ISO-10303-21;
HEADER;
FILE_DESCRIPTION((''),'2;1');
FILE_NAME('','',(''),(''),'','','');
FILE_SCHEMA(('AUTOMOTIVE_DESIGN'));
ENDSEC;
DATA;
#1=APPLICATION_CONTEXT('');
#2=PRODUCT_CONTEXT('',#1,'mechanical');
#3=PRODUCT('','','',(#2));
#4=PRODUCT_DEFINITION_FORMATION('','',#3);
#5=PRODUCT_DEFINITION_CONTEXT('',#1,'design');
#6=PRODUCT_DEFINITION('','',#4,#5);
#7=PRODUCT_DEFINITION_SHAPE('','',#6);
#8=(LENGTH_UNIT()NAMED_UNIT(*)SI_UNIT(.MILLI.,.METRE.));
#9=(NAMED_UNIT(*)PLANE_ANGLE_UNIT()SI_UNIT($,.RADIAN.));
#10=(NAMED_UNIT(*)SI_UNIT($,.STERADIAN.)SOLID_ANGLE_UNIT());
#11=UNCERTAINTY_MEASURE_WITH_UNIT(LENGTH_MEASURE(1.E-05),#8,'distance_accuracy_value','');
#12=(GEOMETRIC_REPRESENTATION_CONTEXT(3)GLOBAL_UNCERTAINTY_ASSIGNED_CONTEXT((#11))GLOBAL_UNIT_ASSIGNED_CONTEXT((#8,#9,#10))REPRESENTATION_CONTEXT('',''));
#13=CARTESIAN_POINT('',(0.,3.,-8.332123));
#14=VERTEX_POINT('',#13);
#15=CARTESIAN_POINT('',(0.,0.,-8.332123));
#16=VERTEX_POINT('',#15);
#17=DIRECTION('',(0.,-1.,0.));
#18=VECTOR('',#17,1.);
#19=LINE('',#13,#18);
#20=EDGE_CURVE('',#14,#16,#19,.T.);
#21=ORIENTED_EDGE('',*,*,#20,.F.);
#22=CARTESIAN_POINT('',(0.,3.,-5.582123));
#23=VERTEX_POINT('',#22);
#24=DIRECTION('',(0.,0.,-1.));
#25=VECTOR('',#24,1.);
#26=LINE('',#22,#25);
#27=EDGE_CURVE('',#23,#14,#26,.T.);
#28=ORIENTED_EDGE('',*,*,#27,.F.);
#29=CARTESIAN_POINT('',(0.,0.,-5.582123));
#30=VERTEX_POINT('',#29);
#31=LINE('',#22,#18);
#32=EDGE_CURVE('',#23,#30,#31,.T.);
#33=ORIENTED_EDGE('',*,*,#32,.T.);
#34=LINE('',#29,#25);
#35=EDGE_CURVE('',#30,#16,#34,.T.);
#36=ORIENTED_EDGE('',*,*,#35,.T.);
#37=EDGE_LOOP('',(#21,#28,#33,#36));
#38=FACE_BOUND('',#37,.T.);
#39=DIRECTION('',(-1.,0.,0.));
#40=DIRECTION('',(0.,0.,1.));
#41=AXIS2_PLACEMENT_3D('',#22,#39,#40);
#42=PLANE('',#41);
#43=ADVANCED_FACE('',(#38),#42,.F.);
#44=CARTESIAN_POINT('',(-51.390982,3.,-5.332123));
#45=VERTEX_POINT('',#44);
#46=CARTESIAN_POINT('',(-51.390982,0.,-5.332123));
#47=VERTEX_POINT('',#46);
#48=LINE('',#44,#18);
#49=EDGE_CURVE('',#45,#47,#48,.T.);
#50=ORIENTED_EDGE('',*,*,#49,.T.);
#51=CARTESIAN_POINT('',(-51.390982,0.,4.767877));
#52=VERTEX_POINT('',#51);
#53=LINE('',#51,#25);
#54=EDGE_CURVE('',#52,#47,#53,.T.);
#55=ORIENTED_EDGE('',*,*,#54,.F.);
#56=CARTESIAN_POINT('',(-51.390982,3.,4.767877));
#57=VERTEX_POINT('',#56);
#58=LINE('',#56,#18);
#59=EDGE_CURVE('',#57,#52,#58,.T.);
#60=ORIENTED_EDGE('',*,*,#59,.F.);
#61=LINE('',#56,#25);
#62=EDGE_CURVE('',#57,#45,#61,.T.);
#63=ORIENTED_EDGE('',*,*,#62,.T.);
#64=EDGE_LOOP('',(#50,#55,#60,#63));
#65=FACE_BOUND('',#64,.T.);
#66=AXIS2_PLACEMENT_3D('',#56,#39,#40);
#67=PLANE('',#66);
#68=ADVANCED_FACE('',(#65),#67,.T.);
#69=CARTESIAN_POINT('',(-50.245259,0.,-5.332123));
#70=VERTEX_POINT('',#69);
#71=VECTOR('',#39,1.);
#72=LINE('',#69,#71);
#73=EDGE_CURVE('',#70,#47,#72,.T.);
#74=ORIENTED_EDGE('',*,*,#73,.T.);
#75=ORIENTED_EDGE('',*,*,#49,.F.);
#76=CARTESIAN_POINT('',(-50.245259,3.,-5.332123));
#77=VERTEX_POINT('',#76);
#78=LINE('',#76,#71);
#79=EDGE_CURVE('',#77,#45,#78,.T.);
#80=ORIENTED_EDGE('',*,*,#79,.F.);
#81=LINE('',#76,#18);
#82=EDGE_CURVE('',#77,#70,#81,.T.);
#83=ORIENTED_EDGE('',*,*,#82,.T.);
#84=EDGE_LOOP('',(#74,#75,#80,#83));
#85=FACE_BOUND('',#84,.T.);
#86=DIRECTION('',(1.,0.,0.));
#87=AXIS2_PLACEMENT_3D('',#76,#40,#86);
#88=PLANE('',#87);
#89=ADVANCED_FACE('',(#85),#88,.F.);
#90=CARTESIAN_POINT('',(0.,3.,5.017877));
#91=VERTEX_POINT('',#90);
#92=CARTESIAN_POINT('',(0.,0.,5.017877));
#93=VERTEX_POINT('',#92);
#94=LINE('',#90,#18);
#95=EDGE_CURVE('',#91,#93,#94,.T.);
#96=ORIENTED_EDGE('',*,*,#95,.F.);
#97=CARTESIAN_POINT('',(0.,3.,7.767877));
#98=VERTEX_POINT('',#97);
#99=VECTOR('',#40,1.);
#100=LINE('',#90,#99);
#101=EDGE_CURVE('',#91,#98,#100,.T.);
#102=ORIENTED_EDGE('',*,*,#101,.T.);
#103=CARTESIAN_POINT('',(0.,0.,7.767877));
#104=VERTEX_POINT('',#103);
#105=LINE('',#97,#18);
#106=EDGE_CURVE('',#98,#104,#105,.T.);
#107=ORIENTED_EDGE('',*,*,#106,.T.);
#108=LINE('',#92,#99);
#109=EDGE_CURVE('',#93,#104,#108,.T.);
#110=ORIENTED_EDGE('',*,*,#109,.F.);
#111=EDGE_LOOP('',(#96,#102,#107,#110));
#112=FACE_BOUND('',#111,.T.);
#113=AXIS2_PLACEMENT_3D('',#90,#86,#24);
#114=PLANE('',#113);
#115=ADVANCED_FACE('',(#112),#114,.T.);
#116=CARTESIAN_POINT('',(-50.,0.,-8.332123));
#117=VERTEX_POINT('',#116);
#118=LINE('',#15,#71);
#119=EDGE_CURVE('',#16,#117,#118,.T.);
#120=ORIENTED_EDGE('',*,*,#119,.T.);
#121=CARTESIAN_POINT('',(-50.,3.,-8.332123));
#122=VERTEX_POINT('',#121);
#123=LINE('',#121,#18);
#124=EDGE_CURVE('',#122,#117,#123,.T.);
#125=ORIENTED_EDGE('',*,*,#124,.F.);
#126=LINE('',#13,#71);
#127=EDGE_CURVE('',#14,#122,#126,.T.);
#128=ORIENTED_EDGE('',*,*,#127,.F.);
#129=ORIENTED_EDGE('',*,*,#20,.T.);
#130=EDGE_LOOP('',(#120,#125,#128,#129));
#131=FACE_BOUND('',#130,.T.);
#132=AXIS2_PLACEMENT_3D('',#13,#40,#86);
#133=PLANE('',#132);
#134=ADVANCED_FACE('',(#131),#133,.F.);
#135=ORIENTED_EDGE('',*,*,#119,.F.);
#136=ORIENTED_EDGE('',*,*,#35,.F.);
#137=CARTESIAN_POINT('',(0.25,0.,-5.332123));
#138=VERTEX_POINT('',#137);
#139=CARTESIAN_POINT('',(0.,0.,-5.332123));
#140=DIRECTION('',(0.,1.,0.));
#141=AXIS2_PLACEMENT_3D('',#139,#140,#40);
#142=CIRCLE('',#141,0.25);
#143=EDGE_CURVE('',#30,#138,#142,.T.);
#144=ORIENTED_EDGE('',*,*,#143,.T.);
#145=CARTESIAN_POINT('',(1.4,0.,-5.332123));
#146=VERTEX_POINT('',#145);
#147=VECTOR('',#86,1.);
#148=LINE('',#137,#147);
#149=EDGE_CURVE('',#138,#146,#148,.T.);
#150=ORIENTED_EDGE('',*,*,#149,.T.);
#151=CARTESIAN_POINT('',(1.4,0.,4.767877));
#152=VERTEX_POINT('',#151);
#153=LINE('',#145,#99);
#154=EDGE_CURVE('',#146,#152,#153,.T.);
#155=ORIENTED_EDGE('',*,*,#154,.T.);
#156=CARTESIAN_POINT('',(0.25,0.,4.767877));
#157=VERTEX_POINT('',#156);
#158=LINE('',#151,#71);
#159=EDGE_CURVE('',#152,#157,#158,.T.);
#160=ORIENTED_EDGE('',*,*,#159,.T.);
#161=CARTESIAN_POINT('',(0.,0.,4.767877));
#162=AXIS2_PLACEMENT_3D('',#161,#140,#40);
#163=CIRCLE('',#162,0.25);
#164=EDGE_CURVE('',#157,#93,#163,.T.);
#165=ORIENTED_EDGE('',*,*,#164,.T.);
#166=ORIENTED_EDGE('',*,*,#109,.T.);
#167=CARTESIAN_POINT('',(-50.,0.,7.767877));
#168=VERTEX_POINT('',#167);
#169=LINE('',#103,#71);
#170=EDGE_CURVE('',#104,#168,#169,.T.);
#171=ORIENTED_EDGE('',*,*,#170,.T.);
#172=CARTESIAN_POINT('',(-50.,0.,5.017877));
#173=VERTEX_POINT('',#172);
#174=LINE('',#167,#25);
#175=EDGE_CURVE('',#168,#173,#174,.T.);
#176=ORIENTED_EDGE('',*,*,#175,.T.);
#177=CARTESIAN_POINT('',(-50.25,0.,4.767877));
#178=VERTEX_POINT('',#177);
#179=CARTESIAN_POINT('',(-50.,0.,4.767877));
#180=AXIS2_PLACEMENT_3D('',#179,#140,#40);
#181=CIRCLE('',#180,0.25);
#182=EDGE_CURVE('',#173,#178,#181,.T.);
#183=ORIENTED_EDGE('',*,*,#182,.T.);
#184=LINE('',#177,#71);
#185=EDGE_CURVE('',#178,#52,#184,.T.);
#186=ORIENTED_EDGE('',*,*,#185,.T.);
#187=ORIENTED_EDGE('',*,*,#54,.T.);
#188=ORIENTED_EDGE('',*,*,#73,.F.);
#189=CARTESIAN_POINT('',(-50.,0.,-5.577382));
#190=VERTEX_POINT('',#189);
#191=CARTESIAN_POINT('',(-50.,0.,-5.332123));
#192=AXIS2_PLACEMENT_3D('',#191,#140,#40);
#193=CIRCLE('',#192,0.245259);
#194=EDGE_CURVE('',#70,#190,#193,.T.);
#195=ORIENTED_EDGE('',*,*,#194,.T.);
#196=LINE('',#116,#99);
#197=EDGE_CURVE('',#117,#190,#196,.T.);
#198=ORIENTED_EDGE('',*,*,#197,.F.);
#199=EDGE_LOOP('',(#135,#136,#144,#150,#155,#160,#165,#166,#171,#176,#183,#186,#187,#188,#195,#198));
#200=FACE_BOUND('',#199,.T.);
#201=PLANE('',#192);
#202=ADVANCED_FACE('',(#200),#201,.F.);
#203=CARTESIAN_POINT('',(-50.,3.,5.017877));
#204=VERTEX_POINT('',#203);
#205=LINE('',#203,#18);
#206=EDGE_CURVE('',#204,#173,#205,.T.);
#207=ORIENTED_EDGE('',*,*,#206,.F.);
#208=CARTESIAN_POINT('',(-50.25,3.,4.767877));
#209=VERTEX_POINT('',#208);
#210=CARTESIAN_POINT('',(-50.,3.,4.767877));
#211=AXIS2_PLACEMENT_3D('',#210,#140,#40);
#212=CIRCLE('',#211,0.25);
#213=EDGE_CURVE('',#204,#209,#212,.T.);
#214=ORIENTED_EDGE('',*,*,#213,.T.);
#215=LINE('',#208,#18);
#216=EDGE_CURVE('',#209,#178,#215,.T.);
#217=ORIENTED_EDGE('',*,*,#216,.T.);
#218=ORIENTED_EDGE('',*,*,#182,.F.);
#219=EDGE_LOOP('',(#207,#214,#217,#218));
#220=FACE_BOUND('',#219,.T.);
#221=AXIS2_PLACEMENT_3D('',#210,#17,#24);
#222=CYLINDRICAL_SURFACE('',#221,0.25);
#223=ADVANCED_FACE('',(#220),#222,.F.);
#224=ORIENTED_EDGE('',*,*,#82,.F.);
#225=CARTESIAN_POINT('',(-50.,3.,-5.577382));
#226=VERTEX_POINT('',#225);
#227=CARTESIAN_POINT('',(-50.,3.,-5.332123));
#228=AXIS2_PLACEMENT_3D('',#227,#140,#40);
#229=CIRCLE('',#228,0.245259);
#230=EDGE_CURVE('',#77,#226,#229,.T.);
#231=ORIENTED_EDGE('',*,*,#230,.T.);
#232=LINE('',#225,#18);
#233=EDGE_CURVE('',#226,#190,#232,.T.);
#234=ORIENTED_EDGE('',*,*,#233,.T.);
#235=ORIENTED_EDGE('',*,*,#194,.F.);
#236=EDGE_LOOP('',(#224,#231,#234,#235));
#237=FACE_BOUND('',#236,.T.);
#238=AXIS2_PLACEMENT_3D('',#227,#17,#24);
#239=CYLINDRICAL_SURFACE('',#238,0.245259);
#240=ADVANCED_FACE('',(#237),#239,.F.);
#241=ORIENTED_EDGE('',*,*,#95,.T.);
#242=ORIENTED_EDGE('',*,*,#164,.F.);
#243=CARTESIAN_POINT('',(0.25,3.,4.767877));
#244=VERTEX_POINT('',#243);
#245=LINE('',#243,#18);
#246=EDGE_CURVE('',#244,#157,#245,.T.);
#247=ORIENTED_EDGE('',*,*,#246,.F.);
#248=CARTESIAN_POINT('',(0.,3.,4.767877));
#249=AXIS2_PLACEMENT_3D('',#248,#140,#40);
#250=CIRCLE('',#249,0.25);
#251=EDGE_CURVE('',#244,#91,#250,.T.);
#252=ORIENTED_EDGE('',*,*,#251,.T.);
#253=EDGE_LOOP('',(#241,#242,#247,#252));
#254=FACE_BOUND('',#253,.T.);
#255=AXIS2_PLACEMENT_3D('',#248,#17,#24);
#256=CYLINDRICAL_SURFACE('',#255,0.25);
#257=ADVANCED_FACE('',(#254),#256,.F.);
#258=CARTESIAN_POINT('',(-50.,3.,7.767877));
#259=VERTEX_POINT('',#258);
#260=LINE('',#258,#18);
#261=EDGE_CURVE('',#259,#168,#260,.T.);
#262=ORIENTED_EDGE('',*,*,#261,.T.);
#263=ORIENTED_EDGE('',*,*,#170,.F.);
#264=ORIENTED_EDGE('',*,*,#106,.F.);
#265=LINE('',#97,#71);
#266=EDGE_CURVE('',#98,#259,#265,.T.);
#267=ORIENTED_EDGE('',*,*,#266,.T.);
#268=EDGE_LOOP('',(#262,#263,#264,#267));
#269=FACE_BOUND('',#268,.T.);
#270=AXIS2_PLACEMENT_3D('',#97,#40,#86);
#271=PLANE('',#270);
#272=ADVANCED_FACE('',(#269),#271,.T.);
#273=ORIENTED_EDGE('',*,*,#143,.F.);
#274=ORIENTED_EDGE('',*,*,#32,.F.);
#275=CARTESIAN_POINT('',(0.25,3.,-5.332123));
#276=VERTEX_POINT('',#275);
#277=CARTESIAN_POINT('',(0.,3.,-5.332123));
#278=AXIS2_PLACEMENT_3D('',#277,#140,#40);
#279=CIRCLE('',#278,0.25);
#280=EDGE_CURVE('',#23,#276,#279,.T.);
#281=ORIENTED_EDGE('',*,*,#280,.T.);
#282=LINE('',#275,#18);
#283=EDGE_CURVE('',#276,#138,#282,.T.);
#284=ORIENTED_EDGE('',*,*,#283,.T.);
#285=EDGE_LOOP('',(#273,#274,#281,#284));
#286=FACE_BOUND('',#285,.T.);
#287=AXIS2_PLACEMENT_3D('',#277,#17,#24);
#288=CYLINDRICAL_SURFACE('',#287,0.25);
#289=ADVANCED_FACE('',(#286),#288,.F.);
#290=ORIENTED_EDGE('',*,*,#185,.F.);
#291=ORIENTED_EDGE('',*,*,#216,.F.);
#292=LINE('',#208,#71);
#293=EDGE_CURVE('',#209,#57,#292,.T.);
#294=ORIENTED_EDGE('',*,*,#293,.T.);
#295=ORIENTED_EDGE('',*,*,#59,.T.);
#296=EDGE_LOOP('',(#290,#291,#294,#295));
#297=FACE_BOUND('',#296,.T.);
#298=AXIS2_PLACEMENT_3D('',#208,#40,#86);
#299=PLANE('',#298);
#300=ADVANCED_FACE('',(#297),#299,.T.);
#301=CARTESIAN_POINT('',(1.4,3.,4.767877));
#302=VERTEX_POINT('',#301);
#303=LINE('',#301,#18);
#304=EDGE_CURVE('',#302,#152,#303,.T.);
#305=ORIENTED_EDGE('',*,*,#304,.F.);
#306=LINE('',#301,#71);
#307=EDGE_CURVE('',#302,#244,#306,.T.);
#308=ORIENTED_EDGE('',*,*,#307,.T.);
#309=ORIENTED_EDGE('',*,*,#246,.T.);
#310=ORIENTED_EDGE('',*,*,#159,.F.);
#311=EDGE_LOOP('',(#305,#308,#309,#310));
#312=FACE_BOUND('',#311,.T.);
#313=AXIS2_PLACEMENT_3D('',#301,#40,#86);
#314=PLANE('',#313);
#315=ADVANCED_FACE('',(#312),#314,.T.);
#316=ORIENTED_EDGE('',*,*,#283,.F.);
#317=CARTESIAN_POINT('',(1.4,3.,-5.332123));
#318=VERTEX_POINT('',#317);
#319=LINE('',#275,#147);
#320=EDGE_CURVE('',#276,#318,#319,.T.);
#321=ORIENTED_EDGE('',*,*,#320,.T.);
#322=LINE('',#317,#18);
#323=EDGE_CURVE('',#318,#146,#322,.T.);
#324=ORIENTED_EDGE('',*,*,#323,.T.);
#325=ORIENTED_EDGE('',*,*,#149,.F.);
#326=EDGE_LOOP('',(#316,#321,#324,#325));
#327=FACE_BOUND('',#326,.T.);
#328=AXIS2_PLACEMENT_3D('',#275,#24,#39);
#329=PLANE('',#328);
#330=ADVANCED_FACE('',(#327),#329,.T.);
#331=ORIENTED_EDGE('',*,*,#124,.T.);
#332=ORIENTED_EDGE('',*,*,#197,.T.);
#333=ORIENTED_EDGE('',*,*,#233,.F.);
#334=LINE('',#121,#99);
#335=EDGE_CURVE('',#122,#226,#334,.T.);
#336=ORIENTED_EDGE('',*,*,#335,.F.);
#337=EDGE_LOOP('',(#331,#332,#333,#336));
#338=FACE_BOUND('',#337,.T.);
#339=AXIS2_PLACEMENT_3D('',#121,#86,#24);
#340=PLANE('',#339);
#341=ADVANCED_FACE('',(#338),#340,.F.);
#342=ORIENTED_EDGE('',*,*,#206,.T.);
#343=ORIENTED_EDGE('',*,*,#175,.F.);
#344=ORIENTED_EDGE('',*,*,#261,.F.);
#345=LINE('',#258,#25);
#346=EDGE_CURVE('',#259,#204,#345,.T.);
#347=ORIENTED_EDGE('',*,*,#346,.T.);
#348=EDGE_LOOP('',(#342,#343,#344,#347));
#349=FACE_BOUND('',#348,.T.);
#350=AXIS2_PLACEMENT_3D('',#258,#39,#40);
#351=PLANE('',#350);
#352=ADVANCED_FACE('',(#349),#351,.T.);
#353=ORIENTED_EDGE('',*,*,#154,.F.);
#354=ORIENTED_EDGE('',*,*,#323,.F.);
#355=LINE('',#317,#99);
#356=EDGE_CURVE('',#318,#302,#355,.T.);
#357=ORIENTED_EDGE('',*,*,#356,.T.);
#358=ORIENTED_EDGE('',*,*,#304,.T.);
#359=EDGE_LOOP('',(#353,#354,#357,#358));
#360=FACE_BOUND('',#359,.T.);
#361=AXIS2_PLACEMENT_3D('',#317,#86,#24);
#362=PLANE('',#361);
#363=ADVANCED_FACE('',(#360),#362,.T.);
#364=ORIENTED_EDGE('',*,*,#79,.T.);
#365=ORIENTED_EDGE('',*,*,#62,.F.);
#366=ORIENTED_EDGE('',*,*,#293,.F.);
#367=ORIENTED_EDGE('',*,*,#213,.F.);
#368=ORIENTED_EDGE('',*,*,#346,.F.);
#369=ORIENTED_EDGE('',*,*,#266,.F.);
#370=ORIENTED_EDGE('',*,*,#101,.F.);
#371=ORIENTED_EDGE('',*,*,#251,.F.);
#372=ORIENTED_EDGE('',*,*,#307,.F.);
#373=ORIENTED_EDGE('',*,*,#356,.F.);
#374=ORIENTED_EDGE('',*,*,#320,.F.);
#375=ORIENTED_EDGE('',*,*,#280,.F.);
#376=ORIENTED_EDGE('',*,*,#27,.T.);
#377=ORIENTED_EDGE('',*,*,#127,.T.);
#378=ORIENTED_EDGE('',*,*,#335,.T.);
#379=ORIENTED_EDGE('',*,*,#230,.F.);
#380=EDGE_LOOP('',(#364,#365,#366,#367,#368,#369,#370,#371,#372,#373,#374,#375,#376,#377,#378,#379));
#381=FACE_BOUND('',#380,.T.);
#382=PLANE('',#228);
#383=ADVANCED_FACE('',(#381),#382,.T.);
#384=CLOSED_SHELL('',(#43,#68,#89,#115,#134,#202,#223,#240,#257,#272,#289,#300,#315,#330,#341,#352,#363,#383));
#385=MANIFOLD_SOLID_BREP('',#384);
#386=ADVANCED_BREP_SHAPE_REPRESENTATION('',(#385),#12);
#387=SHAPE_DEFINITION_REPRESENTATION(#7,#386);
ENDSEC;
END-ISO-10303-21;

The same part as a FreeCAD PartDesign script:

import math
import FreeCAD as App
import Part
import Sketcher
from FreeCAD import Vector
Q = App.Units.Quantity

doc = App.newDocument("Part")
body = doc.addObject("PartDesign::Body", "Body")

# Sketch on XZ plane
sketch1 = doc.addObject("Sketcher::SketchObject", "Sketch")
body.addObject(sketch1)
sketch1.AttachmentSupport = (doc.XZ_Plane, [""])
sketch1.MapMode = "FlatFace"
sketch1.addGeometry([
    Part.LineSegment(Vector(1.4, -5.33, 0), Vector(0.25, -5.33, 0)),  # 0
    Part.ArcOfCircle(Part.Circle(Vector(0, -5.33, 0), Vector(0, 0, 1), 0.25), math.radians(0), math.radians(270)),  # 1
    Part.LineSegment(Vector(0, -5.58, 0), Vector(0, -8.33, 0)),  # 2
    Part.LineSegment(Vector(0, -8.33, 0), Vector(-50, -8.33, 0)),  # 3
    Part.LineSegment(Vector(-50, -8.33, 0), Vector(-50, -5.58, 0)),  # 4
    Part.ArcOfCircle(Part.Circle(Vector(-50, -5.33, 0), Vector(0, 0, 1), 0.25), math.radians(-90), math.radians(180)),  # 5
    Part.LineSegment(Vector(-50.25, -5.33, 0), Vector(-51.39, -5.33, 0)),  # 6
    Part.LineSegment(Vector(-51.39, -5.33, 0), Vector(-51.39, 4.77, 0)),  # 7
    Part.LineSegment(Vector(-51.39, 4.77, 0), Vector(-50.25, 4.77, 0)),  # 8
    Part.ArcOfCircle(Part.Circle(Vector(-50, 4.77, 0), Vector(0, 0, 1), 0.25), math.radians(180), math.radians(450)),  # 9
    Part.LineSegment(Vector(-50, 5.02, 0), Vector(-50, 7.77, 0)),  # 10
    Part.LineSegment(Vector(-50, 7.77, 0), Vector(0, 7.77, 0)),  # 11
    Part.LineSegment(Vector(0, 7.77, 0), Vector(0, 5.02, 0)),  # 12
    Part.ArcOfCircle(Part.Circle(Vector(0, 4.77, 0), Vector(0, 0, 1), 0.25), math.radians(90), math.radians(360)),  # 13
    Part.LineSegment(Vector(0.25, 4.77, 0), Vector(1.4, 4.77, 0)),  # 14
    Part.LineSegment(Vector(1.4, 4.77, 0), Vector(1.4, -5.33, 0)),  # 15
], False)
sketch1.addConstraint([
    Sketcher.Constraint("Coincident", 0, 2, 1, 1),
    Sketcher.Constraint("Coincident", 1, 2, 2, 1),
    Sketcher.Constraint("Coincident", 2, 2, 3, 1),
    Sketcher.Constraint("Coincident", 3, 2, 4, 1),
    Sketcher.Constraint("Coincident", 4, 2, 5, 1),
    Sketcher.Constraint("Coincident", 5, 2, 6, 1),
    Sketcher.Constraint("Coincident", 6, 2, 7, 1),
    Sketcher.Constraint("Coincident", 7, 2, 8, 1),
    Sketcher.Constraint("Coincident", 8, 2, 9, 1),
    Sketcher.Constraint("Coincident", 9, 2, 10, 1),
    Sketcher.Constraint("Coincident", 10, 2, 11, 1),
    Sketcher.Constraint("Coincident", 11, 2, 12, 1),
    Sketcher.Constraint("Coincident", 12, 2, 13, 1),
    Sketcher.Constraint("Coincident", 13, 2, 14, 1),
    Sketcher.Constraint("Coincident", 14, 2, 15, 1),
    Sketcher.Constraint("Coincident", 15, 2, 0, 1),
    Sketcher.Constraint("Horizontal", 0),
    Sketcher.Constraint("Vertical", 2),
    Sketcher.Constraint("Horizontal", 3),
    Sketcher.Constraint("Vertical", 4),
    Sketcher.Constraint("Horizontal", 6),
    Sketcher.Constraint("Vertical", 7),
    Sketcher.Constraint("Horizontal", 8),
    Sketcher.Constraint("Vertical", 10),
    Sketcher.Constraint("Horizontal", 11),
    Sketcher.Constraint("Vertical", 12),
    Sketcher.Constraint("Horizontal", 14),
    Sketcher.Constraint("Vertical", 15),
    Sketcher.Constraint("Equal", 1, 9),
    Sketcher.Constraint("Equal", 9, 13),
    Sketcher.Constraint("PointOnObject", 1, 3, -2),
    Sketcher.Constraint("PointOnObject", 13, 3, -2),
    Sketcher.Constraint("PointOnObject", 1, 2, -2),
    Sketcher.Constraint("PointOnObject", 11, 2, -2),
    Sketcher.Constraint("Horizontal", 1, 3, 5, 3),
    Sketcher.Constraint("Horizontal", 9, 3, 13, 3),
    Sketcher.Constraint("Horizontal", 5, 3, 0, 2),
    Sketcher.Constraint("Horizontal", 0, 2, 5, 2),
    Sketcher.Constraint("Horizontal", 13, 3, 7, 2),
    Sketcher.Constraint("Horizontal", 8, 2, 13, 2),
    Sketcher.Constraint("Vertical", 5, 3, 9, 3),
    Sketcher.Constraint("Vertical", 9, 3, 3, 2),
    Sketcher.Constraint("Vertical", 4, 2, 9, 2),
    Sketcher.Constraint("Equal", 2, 10),
    Sketcher.Constraint("DistanceX", 3, 2, 3, 1, Q("50 mm")),
    Sketcher.Constraint("Radius", 1, Q("0.25 mm")),
    Sketcher.Constraint("DistanceY", 7, 1, 7, 2, Q("10.1 mm")),
    Sketcher.Constraint("DistanceY", 2, 2, 1, 3, Q("3 mm")),
    Sketcher.Constraint("DistanceX", 0, 2, 0, 1, Q("1.15 mm")),
    Sketcher.Constraint("Radius", 5, Q("0.245259 mm")),
    Sketcher.Constraint("DistanceX", 8, 1, 8, 2, Q("1.140982 mm")),
    Sketcher.Constraint("DistanceY", 1, 3, -1, 1, Q("5.332123 mm")),
])
pad1 = doc.addObject("PartDesign::Pad", "Pad")
body.addObject(pad1)
pad1.Profile = sketch1
pad1.Length = 3
pad1.Reversed = True

doc.recompute()
